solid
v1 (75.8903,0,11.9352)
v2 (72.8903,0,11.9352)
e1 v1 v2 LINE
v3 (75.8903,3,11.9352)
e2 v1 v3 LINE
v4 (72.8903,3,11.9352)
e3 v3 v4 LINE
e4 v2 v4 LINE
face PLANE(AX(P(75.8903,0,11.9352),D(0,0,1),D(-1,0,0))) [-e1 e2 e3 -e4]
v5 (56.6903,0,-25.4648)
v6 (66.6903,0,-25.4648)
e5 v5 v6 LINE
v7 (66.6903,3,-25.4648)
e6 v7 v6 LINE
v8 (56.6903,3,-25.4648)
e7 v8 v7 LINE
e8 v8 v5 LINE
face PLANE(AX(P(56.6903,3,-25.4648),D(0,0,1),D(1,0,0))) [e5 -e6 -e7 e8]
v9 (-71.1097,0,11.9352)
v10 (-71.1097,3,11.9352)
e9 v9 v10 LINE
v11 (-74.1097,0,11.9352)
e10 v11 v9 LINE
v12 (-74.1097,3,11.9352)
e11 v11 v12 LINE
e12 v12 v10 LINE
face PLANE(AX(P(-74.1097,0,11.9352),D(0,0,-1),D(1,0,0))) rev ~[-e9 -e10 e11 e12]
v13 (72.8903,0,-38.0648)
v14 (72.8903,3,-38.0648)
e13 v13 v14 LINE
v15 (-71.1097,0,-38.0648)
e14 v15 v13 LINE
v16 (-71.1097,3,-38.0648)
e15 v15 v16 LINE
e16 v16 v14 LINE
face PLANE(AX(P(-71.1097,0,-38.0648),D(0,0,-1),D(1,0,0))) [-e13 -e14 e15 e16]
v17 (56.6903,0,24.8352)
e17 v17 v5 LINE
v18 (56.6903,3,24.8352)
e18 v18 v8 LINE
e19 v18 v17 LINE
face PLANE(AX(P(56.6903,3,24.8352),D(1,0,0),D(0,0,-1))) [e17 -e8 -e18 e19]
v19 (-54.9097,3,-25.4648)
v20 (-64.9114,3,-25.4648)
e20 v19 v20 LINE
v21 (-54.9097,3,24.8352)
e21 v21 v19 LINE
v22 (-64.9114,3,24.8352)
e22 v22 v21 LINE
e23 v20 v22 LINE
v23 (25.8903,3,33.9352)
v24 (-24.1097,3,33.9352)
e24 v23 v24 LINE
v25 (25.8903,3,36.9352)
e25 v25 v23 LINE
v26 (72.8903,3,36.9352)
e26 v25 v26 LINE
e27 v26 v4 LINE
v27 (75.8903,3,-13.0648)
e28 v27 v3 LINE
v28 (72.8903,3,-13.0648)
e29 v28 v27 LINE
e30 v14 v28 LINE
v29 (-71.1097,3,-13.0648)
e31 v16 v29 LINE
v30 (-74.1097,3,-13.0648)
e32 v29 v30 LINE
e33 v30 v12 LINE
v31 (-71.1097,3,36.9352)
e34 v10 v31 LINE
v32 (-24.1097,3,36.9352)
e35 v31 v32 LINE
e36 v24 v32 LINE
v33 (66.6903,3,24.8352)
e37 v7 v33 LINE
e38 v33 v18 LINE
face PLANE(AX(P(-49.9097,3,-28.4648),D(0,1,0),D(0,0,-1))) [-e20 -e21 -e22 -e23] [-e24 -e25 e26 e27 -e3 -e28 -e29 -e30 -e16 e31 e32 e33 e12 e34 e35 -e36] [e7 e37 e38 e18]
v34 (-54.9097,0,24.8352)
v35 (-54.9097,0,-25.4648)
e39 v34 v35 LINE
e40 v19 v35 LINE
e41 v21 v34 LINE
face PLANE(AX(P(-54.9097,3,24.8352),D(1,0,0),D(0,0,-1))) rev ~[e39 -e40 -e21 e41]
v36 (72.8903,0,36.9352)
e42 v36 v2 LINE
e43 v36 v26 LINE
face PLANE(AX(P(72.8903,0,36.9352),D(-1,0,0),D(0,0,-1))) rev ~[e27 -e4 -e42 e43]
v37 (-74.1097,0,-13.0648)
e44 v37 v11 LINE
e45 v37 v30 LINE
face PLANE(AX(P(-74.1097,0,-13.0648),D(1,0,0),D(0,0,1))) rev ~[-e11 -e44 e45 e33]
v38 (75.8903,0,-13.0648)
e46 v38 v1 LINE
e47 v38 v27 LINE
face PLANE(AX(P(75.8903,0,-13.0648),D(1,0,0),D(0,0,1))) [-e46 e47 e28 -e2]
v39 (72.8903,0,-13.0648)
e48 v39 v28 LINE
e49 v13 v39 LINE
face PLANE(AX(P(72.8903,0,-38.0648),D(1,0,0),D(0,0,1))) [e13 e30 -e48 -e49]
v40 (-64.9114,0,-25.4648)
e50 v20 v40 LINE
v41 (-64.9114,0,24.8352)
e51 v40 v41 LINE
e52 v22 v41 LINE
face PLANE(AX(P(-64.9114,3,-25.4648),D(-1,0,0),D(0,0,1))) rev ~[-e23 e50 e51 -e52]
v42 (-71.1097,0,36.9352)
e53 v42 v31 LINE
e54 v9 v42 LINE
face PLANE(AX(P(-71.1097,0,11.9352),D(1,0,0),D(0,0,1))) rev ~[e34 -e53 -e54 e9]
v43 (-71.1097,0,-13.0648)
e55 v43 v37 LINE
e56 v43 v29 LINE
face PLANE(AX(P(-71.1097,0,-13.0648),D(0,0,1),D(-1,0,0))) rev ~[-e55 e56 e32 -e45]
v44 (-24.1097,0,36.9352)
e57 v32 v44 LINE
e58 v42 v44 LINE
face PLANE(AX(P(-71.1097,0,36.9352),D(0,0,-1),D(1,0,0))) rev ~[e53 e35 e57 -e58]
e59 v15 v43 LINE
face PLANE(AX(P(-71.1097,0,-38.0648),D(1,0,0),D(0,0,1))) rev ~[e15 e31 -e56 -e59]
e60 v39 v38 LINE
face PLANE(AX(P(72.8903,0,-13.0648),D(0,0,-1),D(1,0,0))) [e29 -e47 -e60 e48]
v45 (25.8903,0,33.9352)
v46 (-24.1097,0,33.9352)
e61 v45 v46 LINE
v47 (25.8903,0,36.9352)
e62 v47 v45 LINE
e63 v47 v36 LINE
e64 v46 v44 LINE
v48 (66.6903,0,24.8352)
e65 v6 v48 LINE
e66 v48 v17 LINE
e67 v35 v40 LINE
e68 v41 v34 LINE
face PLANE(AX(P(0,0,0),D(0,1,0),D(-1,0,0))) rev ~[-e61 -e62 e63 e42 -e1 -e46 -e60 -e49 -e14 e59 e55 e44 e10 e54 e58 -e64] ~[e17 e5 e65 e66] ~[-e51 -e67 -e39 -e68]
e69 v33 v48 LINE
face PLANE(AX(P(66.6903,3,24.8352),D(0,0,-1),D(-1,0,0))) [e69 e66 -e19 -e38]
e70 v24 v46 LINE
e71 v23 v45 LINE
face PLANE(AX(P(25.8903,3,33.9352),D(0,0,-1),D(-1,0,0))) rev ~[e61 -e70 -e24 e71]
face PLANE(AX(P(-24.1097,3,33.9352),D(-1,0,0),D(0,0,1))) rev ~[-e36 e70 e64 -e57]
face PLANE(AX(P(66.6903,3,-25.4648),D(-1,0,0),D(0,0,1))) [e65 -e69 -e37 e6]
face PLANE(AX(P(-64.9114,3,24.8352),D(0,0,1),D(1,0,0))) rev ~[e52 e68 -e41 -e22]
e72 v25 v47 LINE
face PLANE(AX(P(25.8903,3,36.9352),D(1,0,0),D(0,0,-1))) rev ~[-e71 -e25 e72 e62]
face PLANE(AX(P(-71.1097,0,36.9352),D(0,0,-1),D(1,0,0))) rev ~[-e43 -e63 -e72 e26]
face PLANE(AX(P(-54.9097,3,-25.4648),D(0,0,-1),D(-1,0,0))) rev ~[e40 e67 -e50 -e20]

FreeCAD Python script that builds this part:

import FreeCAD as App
import Part
import Sketcher
from FreeCAD import Vector


def add_polygon(sketch, points):
    """Adds a closed chain of lines whose ends are joined by coincident constraints."""
    first, n = sketch.GeometryCount, len(points)
    for a, b in zip(points, points[1:] + points[:1]):
        sketch.addGeometry(Part.LineSegment(App.Vector(*a, 0), App.Vector(*b, 0)), False)
    for i in range(n):
        sketch.addConstraint(Sketcher.Constraint("Coincident", first + i, 2, first + (i + 1) % n, 1))

doc = App.newDocument("Part")
body = doc.addObject("PartDesign::Body", "Body")

# Sketch on XZ plane
sketch1 = doc.addObject("Sketcher::SketchObject", "Sketch")
body.addObject(sketch1)
sketch1.AttachmentSupport = (doc.XZ_Plane, [""])
sketch1.MapMode = "FlatFace"
add_polygon(sketch1, [(72.9, -38.1), (-71.1, -38.1), (-71.1, -13.1), (-74.1, -13.1), (-74.1, 11.9), (-71.1, 11.9), (-71.1, 36.9), (72.9, 36.9), (72.9, 11.9), (75.9, 11.9), (75.9, -13.1), (72.9, -13.1)])  # lines 0-11
sketch1.addConstraint([
    Sketcher.Constraint("Horizontal", 0),
    Sketcher.Constraint("Vertical", 1),
    Sketcher.Constraint("Horizontal", 2),
    Sketcher.Constraint("Vertical", 3),
    Sketcher.Constraint("Horizontal", 4),
    Sketcher.Constraint("Vertical", 5),
    Sketcher.Constraint("Horizontal", 6),
    Sketcher.Constraint("Vertical", 7),
    Sketcher.Constraint("Horizontal", 8),
    Sketcher.Constraint("Vertical", 9),
    Sketcher.Constraint("Horizontal", 10),
    Sketcher.Constraint("Vertical", 11),
    Sketcher.Constraint("Horizontal", 4, 2, 7, 2),
    Sketcher.Constraint("Horizontal", 2, 2, 9, 2),
    Sketcher.Constraint("Vertical", 1, 2, 4, 2),
    Sketcher.Constraint("Vertical", 7, 2, 10, 2),
    Sketcher.Constraint("Equal", 4, 8),
    Sketcher.Constraint("Equal", 1, 3),
    Sketcher.Constraint("Equal", 3, 5),
    Sketcher.Constraint("DistanceX", 0, 2, 0, 1, 144.0),
    Sketcher.Constraint("DistanceX", 2, 2, 2, 1, 3.0),
    Sketcher.Constraint("DistanceY", 1, 1, 1, 2, 25.0),
    Sketcher.Constraint("DistanceX", 0, 2, -1, 1, 71.1097),
    Sketcher.Constraint("DistanceY", 0, 2, -1, 1, 38.0648),
])
pad1 = doc.addObject("PartDesign::Pad", "Pad")
body.addObject(pad1)
pad1.Profile = sketch1
pad1.Length = 3
pad1.Reversed = True

# Sketch on XZ plane
sketch2 = doc.addObject("Sketcher::SketchObject", "Sketch001")
body.addObject(sketch2)
sketch2.AttachmentSupport = (doc.XZ_Plane, [""])
sketch2.MapMode = "FlatFace"
sketch2.AttachmentOffset = App.Placement(Vector(0, 0, -3), App.Rotation())
add_polygon(sketch2, [(-24.1, 33.9), (-24.1, 36.9), (25.9, 36.9), (25.9, 33.9)])  # lines 0-3
sketch2.addConstraint([
    Sketcher.Constraint("Vertical", 0),
    Sketcher.Constraint("Horizontal", 1),
    Sketcher.Constraint("Vertical", 2),
    Sketcher.Constraint("Horizontal", 3),
    Sketcher.Constraint("DistanceX", 1, 1, 1, 2, 50.0),
    Sketcher.Constraint("DistanceY", 0, 1, 0, 2, 3.0),
    Sketcher.Constraint("DistanceX", 0, 2, -1, 1, 24.1097),
    Sketcher.Constraint("DistanceY", -1, 1, 0, 2, 36.9352),
])
pocket1 = doc.addObject("PartDesign::Pocket", "Pocket")
body.addObject(pocket1)
pocket1.Profile = sketch2
pocket1.Length = 30
pocket1.Reversed = True

# Sketch on XZ plane
sketch3 = doc.addObject("Sketcher::SketchObject", "Sketch002")
body.addObject(sketch3)
sketch3.AttachmentSupport = (doc.XZ_Plane, [""])
sketch3.MapMode = "FlatFace"
sketch3.AttachmentOffset = App.Placement(Vector(0, 0, -3), App.Rotation())
add_polygon(sketch3, [(-54.9, 24.8), (-54.9, -25.5), (-64.9, -25.5), (-64.9, 24.8)])  # lines 0-3
add_polygon(sketch3, [(66.7, -25.5), (56.7, -25.5), (56.7, 24.8), (66.7, 24.8)])  # lines 4-7
sketch3.addGeometry(Part.Circle(Vector(-34.7, -22.9, 0), Vector(0, 0, 1), 2), False)  # 8
sketch3.addGeometry(Part.Circle(Vector(-35.9, 22.3, 0), Vector(0, 0, 1), 2), False)  # 9
sketch3.addGeometry(Part.Circle(Vector(40.3, -22.9, 0), Vector(0, 0, 1), 2), False)  # 10
sketch3.addGeometry(Part.Circle(Vector(46.6, 22.3, 0), Vector(0, 0, 1), 2), False)  # 11
add_polygon(sketch3, [(-49.9, -33.5), (-49.9, -28.5), (51.7, -28.5), (51.7, -33.5)])  # lines 12-15
sketch3.addConstraint([
    Sketcher.Constraint("Vertical", 0),
    Sketcher.Constraint("Horizontal", 1),
    Sketcher.Constraint("Vertical", 2),
    Sketcher.Constraint("Horizontal", 3),
    Sketcher.Constraint("Horizontal", 4),
    Sketcher.Constraint("Vertical", 5),
    Sketcher.Constraint("Horizontal", 6),
    Sketcher.Constraint("Vertical", 7),
    Sketcher.Constraint("Vertical", 12),
    Sketcher.Constraint("Horizontal", 13),
    Sketcher.Constraint("Vertical", 14),
    Sketcher.Constraint("Horizontal", 15),
    Sketcher.Constraint("Equal", 8, 9),
    Sketcher.Constraint("Equal", 9, 10),
    Sketcher.Constraint("Equal", 10, 11),
    Sketcher.Constraint("Horizontal", 8, 3, 10, 3),
    Sketcher.Constraint("Horizontal", 9, 3, 11, 3),
    Sketcher.Constraint("Horizontal", 1, 2, 4, 2),
    Sketcher.Constraint("Horizontal", 3, 2, 5, 2),
    Sketcher.Constraint("Diameter", 8, 4.0),
    Sketcher.Constraint("DistanceX", 4, 2, 4, 1, 10.0),
    Sketcher.Constraint("DistanceY", 12, 1, 12, 2, 5.0),
    Sketcher.Constraint("DistanceX", 13, 1, 13, 2, 101.6),
    Sketcher.Constraint("DistanceY", 0, 2, 0, 1, 50.3),
    Sketcher.Constraint("DistanceX", 0, 2, 12, 2, 5.0),
    Sketcher.Constraint("DistanceY", 12, 2, 0, 2, 3.0),
    Sketcher.Constraint("DistanceX", 13, 2, 4, 2, 5.0),
    Sketcher.Constraint("DistanceX", 9, 3, 10, 3, 76.2),
    Sketcher.Constraint("DistanceX", 9, 3, 8, 3, 1.27),
    Sketcher.Constraint("DistanceY", 8, 3, 9, 3, 45.22),
    Sketcher.Constraint("DistanceX", 10, 3, 11, 3, 6.35),
    Sketcher.Constraint("DistanceX", 0, 2, 8, 3, 20.24),
    Sketcher.Constraint("DistanceY", 0, 2, 8, 3, 2.54),
    Sketcher.Constraint("DistanceX", 1, 2, 1, 1, 10.0017),
    Sketcher.Constraint("DistanceX", 8, 3, -1, 1, 34.6697),
    Sketcher.Constraint("DistanceY", 8, 3, -1, 1, 22.9248),
])
pocket2 = doc.addObject("PartDesign::Pocket", "Pocket001")
body.addObject(pocket2)
pocket2.Profile = sketch3
pocket2.Length = 10
pocket2.Reversed = True

# Sketch on XZ plane
sketch4 = doc.addObject("Sketcher::SketchObject", "Sketch003")
body.addObject(sketch4)
sketch4.AttachmentSupport = (doc.XZ_Plane, [""])
sketch4.MapMode = "FlatFace"
sketch4.AttachmentOffset = App.Placement(Vector(0, 0, -3), App.Rotation())
sketch4.addGeometry([
    Part.Circle(Vector(-34.7, -22.9, 0), Vector(0, 0, 1), 2),
    Part.Circle(Vector(40.3, -22.9, 0), Vector(0, 0, 1), 2),
    Part.Circle(Vector(46.6, 22.3, 0), Vector(0, 0, 1), 2),
    Part.Circle(Vector(-35.9, 22.3, 0), Vector(0, 0, 1), 2),
], False)
sketch4.addConstraint([
    Sketcher.Constraint("Equal", 0, 1),
    Sketcher.Constraint("Equal", 1, 2),
    Sketcher.Constraint("Equal", 2, 3),
    Sketcher.Constraint("Horizontal", 0, 3, 1, 3),
    Sketcher.Constraint("Horizontal", 2, 3, 3, 3),
    Sketcher.Constraint("Diameter", 0, 4.0),
    Sketcher.Constraint("DistanceX", 3, 3, 1, 3, 76.2),
    Sketcher.Constraint("DistanceX", 0, 3, 1, 3, 74.93),
    Sketcher.Constraint("DistanceX", 1, 3, 2, 3, 6.35),
    Sketcher.Constraint("DistanceY", 1, 3, 2, 3, 45.22),
    Sketcher.Constraint("DistanceX", 0, 3, -1, 1, 34.6697),
    Sketcher.Constraint("DistanceY", 0, 3, -1, 1, 22.9248),
])
pad2 = doc.addObject("PartDesign::Pad", "Pad001")
body.addObject(pad2)
pad2.Profile = sketch4
pad2.Length = 3

# Sketch on YZ plane
sketch5 = doc.addObject("Sketcher::SketchObject", "Sketch004")
body.addObject(sketch5)
sketch5.AttachmentSupport = (doc.YZ_Plane, [""])
sketch5.MapMode = "FlatFace"
sketch5.AttachmentOffset = App.Placement(Vector(0, 0, -49.9097), App.Rotation())
add_polygon(sketch5, [(3, -33.5), (3, -28.5), (0, -28.5), (0, -33.5)])  # lines 0-3
sketch5.addConstraint([
    Sketcher.Constraint("Vertical", 0),
    Sketcher.Constraint("Horizontal", 1),
    Sketcher.Constraint("Vertical", 2),
    Sketcher.Constraint("Horizontal", 3),
    Sketcher.Constraint("PointOnObject", 1, 2, -2),
    Sketcher.Constraint("DistanceX", 1, 2, 1, 1, 3.0),
    Sketcher.Constraint("DistanceY", 0, 1, 0, 2, 5.0),
    Sketcher.Constraint("DistanceY", 0, 2, -1, 1, 28.4648),
])
pad3 = doc.addObject("PartDesign::Pad", "Pad002")
body.addObject(pad3)
pad3.Profile = sketch5
pad3.Length = 102.075

doc.recompute()
